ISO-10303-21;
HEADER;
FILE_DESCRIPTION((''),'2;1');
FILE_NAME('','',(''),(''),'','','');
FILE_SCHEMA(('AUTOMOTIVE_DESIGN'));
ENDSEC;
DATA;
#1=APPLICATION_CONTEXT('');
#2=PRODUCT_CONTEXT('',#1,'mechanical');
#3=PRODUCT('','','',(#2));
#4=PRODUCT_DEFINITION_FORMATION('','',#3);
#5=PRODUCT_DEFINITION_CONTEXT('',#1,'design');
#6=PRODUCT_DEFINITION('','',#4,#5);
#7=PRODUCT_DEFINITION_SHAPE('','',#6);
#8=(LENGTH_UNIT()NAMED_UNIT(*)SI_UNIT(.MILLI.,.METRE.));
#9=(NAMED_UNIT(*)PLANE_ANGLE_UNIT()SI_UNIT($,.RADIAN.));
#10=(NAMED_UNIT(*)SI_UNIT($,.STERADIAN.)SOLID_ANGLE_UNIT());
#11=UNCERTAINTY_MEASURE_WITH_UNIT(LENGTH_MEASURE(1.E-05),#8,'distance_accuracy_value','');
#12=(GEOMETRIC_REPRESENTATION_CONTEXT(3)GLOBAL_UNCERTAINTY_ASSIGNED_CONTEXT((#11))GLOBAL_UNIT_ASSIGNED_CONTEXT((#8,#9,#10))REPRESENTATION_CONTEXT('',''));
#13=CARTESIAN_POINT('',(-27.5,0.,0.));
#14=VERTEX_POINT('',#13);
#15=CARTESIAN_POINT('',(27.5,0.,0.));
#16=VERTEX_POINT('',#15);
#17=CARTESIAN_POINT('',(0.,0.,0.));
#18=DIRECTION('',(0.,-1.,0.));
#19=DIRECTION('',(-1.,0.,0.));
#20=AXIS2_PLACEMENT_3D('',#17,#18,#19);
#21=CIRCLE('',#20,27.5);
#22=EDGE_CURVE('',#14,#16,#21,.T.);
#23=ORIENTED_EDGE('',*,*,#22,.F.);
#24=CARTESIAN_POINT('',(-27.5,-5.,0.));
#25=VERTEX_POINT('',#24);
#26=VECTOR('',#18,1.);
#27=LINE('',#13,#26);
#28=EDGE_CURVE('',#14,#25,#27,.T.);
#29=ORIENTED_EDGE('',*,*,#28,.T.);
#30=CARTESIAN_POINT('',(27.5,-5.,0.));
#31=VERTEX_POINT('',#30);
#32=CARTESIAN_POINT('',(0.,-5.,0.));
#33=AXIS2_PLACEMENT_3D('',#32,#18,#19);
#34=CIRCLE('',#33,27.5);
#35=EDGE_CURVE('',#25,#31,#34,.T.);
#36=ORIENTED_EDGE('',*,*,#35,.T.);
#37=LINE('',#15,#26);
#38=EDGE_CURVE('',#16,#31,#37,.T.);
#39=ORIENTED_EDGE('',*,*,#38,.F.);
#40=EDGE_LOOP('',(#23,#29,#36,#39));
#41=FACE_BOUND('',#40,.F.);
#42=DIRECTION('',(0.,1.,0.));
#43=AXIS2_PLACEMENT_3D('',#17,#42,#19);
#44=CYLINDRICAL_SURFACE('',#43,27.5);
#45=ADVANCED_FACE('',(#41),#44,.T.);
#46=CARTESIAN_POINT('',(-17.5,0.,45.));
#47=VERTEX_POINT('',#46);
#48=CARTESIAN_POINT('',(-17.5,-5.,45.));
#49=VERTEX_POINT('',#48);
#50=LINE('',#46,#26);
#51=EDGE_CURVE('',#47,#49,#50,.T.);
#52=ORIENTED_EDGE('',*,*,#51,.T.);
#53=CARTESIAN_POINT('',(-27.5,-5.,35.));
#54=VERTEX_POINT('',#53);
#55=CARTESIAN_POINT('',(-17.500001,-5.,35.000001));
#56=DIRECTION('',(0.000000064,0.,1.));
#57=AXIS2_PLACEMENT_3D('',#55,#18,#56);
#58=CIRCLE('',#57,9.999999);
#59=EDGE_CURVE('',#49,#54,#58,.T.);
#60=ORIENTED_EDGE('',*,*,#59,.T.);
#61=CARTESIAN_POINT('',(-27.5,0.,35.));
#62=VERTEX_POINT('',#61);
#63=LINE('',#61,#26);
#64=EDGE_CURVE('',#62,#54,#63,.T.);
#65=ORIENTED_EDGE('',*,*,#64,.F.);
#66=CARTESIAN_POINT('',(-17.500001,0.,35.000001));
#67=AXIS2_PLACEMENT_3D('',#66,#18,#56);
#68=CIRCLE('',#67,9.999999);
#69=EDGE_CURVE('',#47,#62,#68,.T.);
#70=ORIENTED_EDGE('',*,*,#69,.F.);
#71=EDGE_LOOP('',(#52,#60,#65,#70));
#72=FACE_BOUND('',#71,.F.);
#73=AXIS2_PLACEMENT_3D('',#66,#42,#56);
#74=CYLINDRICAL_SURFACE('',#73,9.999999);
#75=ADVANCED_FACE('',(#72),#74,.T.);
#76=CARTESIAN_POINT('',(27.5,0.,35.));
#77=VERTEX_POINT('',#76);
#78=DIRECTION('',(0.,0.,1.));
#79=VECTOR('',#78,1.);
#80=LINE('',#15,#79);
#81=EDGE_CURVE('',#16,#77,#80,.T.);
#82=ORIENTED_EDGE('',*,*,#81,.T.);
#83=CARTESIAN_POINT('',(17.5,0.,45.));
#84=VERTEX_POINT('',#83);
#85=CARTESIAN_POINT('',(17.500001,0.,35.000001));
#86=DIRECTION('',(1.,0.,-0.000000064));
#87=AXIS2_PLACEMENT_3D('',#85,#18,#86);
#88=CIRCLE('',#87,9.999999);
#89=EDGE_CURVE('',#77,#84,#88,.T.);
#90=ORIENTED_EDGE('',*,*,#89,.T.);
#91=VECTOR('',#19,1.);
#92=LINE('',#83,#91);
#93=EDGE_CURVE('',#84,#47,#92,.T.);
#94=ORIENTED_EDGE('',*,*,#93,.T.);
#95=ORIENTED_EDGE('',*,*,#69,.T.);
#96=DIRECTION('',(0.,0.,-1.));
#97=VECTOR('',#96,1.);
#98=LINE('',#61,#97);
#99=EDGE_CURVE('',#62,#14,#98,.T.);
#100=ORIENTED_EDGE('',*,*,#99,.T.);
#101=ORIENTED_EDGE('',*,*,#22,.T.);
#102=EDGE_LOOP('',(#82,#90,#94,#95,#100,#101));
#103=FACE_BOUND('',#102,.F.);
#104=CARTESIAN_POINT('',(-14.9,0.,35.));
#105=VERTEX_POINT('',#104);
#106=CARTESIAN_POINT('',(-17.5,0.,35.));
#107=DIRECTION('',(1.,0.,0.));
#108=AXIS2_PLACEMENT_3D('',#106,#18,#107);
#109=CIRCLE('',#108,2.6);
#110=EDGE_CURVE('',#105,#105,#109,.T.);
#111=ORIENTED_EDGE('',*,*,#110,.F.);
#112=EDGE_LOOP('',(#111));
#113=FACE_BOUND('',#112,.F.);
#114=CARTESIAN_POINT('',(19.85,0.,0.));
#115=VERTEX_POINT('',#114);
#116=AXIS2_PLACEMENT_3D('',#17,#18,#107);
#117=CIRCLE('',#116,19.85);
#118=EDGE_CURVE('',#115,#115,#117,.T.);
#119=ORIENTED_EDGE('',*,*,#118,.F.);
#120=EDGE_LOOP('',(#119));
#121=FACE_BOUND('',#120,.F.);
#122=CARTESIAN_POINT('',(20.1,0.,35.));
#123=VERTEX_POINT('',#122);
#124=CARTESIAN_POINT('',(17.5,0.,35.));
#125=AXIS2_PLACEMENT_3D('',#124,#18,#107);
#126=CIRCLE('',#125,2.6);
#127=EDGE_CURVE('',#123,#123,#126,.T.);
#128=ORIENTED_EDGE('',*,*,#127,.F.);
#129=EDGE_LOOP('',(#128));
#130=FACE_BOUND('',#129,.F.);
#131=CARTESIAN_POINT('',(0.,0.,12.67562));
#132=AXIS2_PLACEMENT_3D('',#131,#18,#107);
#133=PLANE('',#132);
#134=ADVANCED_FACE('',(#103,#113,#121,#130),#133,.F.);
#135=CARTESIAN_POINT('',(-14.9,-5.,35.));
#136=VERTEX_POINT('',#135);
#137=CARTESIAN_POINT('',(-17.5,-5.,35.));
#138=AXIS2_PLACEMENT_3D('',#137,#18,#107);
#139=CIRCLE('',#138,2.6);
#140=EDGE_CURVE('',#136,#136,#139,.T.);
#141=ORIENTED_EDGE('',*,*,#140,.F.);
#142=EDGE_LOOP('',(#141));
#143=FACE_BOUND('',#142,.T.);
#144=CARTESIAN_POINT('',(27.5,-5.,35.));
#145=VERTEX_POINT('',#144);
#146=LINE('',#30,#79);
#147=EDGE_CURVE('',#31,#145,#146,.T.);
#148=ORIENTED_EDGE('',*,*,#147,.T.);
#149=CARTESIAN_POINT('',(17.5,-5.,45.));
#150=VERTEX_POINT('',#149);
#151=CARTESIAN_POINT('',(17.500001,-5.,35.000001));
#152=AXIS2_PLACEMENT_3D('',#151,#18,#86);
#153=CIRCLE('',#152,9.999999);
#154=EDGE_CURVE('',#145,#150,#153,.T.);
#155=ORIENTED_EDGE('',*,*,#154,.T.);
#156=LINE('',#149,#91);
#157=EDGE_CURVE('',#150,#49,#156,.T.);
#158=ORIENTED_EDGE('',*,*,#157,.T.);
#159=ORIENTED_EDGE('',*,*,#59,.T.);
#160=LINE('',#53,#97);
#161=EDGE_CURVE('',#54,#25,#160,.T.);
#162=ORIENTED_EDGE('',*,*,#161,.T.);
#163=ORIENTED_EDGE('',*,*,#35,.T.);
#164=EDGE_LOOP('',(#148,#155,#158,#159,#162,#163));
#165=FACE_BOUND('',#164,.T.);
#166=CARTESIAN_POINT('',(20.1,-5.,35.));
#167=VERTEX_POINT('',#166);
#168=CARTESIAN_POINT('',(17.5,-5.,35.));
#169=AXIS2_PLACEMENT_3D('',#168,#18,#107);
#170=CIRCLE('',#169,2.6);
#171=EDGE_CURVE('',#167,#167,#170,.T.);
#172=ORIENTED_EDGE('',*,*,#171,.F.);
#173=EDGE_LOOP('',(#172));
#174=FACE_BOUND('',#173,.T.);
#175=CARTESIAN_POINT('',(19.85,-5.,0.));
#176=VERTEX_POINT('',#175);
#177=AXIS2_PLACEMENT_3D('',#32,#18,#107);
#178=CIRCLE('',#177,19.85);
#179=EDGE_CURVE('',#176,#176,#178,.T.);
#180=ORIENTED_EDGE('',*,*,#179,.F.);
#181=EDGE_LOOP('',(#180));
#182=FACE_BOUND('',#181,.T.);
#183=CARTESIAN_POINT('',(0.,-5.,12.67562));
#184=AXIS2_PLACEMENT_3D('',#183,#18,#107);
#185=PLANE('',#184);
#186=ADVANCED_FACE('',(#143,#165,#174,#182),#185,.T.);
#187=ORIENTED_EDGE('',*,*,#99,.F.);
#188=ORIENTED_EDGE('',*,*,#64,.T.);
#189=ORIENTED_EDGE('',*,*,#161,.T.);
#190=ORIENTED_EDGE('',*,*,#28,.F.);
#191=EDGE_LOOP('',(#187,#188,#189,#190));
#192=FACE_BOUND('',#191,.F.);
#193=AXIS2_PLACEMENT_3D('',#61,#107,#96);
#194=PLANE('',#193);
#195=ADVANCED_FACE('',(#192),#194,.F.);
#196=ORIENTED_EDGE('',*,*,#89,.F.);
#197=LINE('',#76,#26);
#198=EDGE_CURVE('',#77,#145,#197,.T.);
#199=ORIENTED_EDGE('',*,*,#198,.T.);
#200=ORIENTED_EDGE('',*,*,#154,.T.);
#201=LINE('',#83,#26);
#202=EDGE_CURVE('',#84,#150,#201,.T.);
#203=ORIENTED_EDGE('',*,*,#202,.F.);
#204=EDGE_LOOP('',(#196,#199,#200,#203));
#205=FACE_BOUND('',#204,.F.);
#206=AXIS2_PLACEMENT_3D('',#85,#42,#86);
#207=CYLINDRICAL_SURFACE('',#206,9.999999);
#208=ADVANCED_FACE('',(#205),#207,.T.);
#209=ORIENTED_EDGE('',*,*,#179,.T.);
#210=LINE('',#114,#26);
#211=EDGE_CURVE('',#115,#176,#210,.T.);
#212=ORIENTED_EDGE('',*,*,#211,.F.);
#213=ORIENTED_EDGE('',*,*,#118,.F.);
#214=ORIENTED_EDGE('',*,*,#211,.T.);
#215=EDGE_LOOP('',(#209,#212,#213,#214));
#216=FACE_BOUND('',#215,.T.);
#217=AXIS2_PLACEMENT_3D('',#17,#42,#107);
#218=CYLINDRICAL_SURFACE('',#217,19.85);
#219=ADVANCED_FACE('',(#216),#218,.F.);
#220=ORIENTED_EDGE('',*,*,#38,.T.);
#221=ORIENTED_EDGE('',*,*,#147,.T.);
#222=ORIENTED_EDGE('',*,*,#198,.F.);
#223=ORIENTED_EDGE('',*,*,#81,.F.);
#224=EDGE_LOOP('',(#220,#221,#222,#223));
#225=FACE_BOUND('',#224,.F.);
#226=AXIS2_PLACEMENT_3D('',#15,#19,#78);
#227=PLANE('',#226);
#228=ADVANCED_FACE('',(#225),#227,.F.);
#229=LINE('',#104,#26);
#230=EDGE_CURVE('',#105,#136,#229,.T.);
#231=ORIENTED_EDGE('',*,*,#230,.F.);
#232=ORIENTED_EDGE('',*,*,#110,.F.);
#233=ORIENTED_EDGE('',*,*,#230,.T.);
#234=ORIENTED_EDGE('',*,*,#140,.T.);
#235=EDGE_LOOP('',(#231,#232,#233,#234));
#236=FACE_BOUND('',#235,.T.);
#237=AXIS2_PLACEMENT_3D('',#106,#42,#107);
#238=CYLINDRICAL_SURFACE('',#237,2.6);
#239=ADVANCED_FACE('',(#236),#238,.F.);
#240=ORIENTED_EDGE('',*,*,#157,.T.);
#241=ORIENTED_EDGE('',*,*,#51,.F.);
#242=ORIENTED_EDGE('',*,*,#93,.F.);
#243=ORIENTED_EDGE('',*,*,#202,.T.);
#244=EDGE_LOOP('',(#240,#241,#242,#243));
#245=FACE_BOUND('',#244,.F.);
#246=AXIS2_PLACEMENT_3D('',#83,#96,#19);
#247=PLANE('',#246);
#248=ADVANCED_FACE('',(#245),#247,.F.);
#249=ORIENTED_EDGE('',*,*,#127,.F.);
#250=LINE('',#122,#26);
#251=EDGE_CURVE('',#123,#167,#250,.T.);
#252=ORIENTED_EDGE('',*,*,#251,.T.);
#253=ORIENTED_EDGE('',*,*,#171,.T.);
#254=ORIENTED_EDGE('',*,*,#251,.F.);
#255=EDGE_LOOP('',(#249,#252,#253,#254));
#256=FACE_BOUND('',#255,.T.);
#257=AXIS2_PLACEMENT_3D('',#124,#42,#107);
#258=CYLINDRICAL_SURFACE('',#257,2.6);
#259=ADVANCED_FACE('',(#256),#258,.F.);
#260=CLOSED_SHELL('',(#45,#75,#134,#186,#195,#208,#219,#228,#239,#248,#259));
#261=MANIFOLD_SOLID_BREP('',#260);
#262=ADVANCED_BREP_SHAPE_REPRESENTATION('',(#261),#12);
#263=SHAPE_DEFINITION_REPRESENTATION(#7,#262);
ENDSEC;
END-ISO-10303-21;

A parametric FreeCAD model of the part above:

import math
import FreeCAD as App
import Part
import Sketcher
from FreeCAD import Vector
Q = App.Units.Quantity

doc = App.newDocument("Part")
body = doc.addObject("PartDesign::Body", "Body")

sketch1 = doc.addObject("Sketcher::SketchObject", "Sketch")
body.addObject(sketch1)
sketch1.AttachmentSupport = (doc.XZ_Plane, [""])
sketch1.MapMode = "FlatFace"
sketch1.addGeometry([
    Part.LineSegment(Vector(-27.5, 35, 0), Vector(-27.5, 0, 0)),
    Part.ArcOfCircle(Part.Circle(Vector(0, 0, 0), Vector(0, 0, 1), 27.5), math.radians(180), math.radians(360)),
    Part.LineSegment(Vector(27.5, 0, 0), Vector(27.5, 35, 0)),
    Part.ArcOfCircle(Part.Circle(Vector(17.5, 35, 0), Vector(0, 0, 1), 10), math.radians(0), math.radians(90)),
    Part.LineSegment(Vector(17.5, 45, 0), Vector(-17.5, 45, 0)),
    Part.ArcOfCircle(Part.Circle(Vector(-17.5, 35, 0), Vector(0, 0, 1), 10), math.radians(90), math.radians(180)),
    Part.Circle(Vector(0, 0, 0), Vector(0, 0, 1), 19.9),
    Part.Circle(Vector(-17.5, 35, 0), Vector(0, 0, 1), 2.6),
    Part.Circle(Vector(17.5, 35, 0), Vector(0, 0, 1), 2.6),
], False)
sketch1.addConstraint([
    Sketcher.Constraint("Tangent", 0, 2, 1, 1),
    Sketcher.Constraint("Tangent", 1, 2, 2, 1),
    Sketcher.Constraint("Tangent", 2, 2, 3, 1),
    Sketcher.Constraint("Tangent", 3, 2, 4, 1),
    Sketcher.Constraint("Tangent", 4, 2, 5, 1),
    Sketcher.Constraint("Tangent", 5, 2, 0, 1),
    Sketcher.Constraint("Vertical", 0),
    Sketcher.Constraint("Vertical", 2),
    Sketcher.Constraint("Horizontal", 4),
    Sketcher.Constraint("Coincident", 1, 3, -1, 1),
    Sketcher.Constraint("Coincident", 6, 3, -1, 1),
    Sketcher.Constraint("Coincident", 7, 3, 5, 3),
    Sketcher.Constraint("Coincident", 8, 3, 3, 3),
    Sketcher.Constraint("Equal", 3, 5),
    Sketcher.Constraint("Equal", 7, 8),
    Sketcher.Constraint("Equal", 4, 0),
    Sketcher.Constraint("Radius", 3, Q("9.999999 mm")),
    Sketcher.Constraint("Diameter", 6, Q("39.7 mm")),
    Sketcher.Constraint("Diameter", 7, Q("5.2 mm")),
    Sketcher.Constraint("Radius", 1, Q("27.5 mm")),
])
pad1 = doc.addObject("PartDesign::Pad", "Pad")
body.addObject(pad1)
pad1.Profile = sketch1
pad1.Length = 5

doc.recompute()
